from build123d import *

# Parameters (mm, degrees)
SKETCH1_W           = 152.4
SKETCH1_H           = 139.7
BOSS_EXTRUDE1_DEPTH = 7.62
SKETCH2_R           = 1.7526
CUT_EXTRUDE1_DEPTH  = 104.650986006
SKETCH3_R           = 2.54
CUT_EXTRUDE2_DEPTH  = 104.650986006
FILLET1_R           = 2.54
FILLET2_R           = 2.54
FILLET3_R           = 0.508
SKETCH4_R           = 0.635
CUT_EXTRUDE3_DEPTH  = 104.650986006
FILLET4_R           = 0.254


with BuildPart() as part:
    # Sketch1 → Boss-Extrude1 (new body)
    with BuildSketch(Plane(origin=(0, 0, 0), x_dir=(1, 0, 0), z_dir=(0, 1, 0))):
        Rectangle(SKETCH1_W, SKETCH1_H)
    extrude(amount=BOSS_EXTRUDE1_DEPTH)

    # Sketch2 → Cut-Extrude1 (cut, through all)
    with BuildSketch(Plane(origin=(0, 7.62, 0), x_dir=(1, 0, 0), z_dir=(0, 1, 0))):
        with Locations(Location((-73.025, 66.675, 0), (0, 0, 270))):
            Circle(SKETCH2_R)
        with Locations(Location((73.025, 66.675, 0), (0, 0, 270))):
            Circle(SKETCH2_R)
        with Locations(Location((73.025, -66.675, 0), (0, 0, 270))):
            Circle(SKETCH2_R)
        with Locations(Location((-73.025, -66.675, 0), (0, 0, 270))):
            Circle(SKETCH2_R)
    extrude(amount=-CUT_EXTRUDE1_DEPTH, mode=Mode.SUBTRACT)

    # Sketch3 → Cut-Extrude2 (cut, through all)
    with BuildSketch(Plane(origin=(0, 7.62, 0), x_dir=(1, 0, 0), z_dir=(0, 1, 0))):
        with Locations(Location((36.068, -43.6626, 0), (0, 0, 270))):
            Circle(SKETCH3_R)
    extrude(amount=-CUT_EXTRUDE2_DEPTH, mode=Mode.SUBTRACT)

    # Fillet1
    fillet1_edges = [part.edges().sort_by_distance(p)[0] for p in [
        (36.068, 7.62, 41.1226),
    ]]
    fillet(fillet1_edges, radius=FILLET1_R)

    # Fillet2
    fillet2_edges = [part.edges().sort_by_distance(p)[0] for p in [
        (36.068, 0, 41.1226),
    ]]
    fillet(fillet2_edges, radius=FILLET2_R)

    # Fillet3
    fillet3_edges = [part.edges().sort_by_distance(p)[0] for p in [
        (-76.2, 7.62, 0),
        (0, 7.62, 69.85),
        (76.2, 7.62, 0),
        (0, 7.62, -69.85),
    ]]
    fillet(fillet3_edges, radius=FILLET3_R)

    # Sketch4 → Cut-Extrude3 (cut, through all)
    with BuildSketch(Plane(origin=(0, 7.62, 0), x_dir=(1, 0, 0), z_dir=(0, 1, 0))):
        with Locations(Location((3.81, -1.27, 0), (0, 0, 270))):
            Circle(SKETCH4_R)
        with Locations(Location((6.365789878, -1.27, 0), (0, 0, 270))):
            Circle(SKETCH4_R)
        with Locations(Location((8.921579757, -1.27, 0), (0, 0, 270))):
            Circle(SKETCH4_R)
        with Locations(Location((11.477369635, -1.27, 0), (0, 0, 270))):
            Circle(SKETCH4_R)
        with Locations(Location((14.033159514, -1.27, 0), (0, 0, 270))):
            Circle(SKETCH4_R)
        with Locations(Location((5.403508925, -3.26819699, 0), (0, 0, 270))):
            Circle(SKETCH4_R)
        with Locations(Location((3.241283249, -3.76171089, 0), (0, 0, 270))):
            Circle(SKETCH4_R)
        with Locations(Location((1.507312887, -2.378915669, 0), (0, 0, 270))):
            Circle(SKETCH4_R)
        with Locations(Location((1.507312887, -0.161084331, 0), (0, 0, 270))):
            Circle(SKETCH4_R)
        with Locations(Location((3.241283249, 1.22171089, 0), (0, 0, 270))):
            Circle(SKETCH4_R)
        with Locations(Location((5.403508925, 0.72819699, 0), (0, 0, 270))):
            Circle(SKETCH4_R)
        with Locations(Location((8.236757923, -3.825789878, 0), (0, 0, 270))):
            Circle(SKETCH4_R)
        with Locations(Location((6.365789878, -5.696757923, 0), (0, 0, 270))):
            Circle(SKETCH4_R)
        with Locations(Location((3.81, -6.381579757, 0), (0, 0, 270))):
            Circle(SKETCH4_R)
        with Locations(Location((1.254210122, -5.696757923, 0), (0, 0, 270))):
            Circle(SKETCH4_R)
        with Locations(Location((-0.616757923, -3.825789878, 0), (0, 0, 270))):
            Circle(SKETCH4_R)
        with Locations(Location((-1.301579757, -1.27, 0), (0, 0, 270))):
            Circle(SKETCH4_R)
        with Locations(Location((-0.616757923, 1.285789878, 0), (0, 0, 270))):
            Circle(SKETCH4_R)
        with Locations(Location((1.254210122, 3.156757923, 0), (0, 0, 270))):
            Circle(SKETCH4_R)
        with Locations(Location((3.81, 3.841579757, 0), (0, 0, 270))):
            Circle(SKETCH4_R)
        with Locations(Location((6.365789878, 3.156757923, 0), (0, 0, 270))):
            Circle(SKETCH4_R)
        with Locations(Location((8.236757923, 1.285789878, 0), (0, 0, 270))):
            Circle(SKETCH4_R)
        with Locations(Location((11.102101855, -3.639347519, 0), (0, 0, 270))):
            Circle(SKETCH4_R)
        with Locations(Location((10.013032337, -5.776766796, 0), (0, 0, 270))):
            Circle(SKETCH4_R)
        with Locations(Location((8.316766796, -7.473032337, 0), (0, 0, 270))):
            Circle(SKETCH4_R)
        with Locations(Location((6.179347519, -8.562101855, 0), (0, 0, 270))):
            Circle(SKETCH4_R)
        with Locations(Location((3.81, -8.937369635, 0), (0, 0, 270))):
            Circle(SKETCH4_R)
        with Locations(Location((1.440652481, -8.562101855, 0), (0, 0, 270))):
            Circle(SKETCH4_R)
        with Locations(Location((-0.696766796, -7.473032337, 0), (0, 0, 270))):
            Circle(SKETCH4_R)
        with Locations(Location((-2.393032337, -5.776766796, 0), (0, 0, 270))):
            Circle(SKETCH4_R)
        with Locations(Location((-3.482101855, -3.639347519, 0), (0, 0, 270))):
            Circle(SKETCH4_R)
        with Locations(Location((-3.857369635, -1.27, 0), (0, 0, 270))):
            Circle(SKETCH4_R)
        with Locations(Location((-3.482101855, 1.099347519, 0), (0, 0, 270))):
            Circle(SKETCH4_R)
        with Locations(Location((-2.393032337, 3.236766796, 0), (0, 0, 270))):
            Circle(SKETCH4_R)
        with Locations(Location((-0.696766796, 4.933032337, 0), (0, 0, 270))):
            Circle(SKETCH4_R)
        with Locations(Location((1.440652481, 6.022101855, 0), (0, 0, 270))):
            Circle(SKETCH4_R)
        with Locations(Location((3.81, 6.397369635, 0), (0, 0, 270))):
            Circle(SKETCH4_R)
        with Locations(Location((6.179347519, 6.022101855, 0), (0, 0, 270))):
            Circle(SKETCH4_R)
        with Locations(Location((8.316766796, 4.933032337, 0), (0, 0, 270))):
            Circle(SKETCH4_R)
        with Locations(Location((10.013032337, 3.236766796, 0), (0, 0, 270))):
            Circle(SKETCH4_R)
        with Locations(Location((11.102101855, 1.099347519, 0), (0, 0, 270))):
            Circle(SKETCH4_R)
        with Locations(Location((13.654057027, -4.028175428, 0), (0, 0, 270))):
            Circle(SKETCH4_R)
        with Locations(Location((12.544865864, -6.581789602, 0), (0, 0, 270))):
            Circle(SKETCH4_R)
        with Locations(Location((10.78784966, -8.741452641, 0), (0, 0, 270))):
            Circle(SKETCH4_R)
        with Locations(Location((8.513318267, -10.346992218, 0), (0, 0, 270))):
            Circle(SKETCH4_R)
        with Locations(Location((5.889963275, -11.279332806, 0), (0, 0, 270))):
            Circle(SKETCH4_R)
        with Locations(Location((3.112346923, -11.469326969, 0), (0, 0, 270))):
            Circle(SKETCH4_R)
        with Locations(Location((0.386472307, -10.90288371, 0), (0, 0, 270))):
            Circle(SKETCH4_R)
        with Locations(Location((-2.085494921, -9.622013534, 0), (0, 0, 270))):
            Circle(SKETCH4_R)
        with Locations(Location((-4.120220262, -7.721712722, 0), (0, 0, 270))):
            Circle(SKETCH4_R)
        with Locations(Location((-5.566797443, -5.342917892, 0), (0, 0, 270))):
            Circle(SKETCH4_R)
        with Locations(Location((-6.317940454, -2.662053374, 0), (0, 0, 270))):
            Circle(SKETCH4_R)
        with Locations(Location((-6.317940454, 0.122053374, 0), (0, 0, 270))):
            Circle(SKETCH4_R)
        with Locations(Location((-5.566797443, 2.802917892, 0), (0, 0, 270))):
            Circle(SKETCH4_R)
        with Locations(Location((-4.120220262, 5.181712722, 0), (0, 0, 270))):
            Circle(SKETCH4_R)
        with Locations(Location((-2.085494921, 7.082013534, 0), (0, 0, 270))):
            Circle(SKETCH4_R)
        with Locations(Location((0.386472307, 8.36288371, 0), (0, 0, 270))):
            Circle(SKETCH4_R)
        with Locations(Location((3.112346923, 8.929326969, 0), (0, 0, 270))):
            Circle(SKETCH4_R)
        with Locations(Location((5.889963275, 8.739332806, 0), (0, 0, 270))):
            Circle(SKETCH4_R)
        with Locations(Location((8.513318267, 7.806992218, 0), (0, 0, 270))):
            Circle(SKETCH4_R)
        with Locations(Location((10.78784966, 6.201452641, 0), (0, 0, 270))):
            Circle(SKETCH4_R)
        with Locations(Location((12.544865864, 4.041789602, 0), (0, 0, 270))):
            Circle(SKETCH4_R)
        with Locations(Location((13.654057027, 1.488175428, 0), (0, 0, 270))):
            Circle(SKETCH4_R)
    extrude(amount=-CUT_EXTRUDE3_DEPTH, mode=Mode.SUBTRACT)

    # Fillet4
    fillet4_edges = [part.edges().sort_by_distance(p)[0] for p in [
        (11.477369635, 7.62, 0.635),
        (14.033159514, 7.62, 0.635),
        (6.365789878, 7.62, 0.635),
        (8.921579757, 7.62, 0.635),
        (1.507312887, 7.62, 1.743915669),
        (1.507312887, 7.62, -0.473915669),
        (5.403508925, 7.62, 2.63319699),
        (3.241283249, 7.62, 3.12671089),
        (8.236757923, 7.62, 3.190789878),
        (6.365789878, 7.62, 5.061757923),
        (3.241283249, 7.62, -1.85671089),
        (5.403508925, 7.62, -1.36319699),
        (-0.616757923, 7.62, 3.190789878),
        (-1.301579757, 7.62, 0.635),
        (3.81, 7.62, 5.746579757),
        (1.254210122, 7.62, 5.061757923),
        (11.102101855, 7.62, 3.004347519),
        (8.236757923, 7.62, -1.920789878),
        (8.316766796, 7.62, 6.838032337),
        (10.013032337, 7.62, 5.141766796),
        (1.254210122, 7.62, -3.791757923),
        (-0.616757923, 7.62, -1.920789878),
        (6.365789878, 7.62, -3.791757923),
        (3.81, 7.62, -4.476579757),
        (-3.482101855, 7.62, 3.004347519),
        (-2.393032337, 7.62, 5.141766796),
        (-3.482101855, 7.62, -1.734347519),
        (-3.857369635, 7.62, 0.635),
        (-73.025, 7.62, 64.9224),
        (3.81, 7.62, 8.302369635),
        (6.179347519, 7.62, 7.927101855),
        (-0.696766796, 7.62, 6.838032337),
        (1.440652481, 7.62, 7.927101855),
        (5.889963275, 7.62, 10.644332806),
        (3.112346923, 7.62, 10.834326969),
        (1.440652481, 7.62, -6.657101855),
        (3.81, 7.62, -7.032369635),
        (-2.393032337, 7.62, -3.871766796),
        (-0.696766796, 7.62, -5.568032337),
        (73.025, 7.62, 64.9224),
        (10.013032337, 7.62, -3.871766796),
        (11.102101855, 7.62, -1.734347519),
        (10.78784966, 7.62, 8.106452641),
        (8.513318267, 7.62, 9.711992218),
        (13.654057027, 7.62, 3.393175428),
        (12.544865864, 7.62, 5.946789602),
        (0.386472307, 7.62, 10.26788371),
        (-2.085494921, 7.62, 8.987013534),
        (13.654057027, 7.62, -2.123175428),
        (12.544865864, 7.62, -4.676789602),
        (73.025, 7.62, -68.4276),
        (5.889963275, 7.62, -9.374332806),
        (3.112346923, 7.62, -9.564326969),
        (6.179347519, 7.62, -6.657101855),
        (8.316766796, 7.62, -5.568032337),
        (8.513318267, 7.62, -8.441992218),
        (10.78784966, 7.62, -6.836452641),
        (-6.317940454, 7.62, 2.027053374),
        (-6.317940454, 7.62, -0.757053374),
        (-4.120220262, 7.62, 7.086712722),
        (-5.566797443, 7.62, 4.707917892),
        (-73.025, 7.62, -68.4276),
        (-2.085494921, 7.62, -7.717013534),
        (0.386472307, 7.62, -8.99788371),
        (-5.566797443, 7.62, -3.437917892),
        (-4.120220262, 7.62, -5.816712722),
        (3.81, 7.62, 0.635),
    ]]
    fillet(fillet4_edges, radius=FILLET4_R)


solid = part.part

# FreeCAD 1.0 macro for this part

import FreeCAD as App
import Part
import Sketcher

V = App.Vector
Q = App.Units.Quantity


def edges_at(feature, points):
    """Names of the edges that pass closest to the given points."""
    edges = feature.Shape.Edges
    near = lambda p: min(range(len(edges)), key=lambda i: edges[i].distToShape(Part.Vertex(*p))[0])
    return sorted({f"Edge{near(p) + 1}" for p in points})

doc = App.newDocument("Part")
body = doc.addObject("PartDesign::Body", "Body")

# Sketch on XZ plane
sketch1 = body.newObject("Sketcher::SketchObject", "Sketch")
sketch1.AttachmentSupport = (doc.getObject("XZ_Plane"), [""])
sketch1.MapMode = "FlatFace"
sketch1.addGeometry([
    Part.LineSegment(V(-76, -70, 0), V(-76, 70, 0)),
    Part.LineSegment(V(-76, 70, 0), V(76, 70, 0)),
    Part.LineSegment(V(76, 70, 0), V(76, -70, 0)),
    Part.LineSegment(V(76, -70, 0), V(-76, -70, 0)),
], False)
sketch1.addConstraint([
    Sketcher.Constraint("Coincident", 0, 2, 1, 1),
    Sketcher.Constraint("Coincident", 1, 2, 2, 1),
    Sketcher.Constraint("Coincident", 2, 2, 3, 1),
    Sketcher.Constraint("Coincident", 3, 2, 0, 1),
    Sketcher.Constraint("Vertical", 0),
    Sketcher.Constraint("Horizontal", 1),
    Sketcher.Constraint("Vertical", 2),
    Sketcher.Constraint("Horizontal", 3),
    Sketcher.Constraint("Symmetric", 0, 2, 2, 2, -1, 1),
    Sketcher.Constraint("DistanceX", 1, 1, 1, 2, Q("6 in")),
    Sketcher.Constraint("DistanceY", 0, 1, 0, 2, Q("5.5 in")),
])
pad1 = body.newObject("PartDesign::Pad", "Pad")
pad1.Profile = sketch1
pad1.Length = Q("0.3 in")
pad1.Reversed = True

# Sketch on XZ plane
sketch2 = body.newObject("Sketcher::SketchObject", "Sketch001")
sketch2.AttachmentSupport = (doc.getObject("XZ_Plane"), [""])
sketch2.MapMode = "FlatFace"
sketch2.AttachmentOffset = App.Placement(V(0, 0, -0.3 * 25.4), App.Rotation())
sketch2.addGeometry([
    Part.Circle(V(-73, -66.7, 0), V(0, 0, 1), 1.8),
    Part.Circle(V(73, -66.7, 0), V(0, 0, 1), 1.8),
    Part.Circle(V(73, 66.7, 0), V(0, 0, 1), 1.8),
    Part.Circle(V(-73, 66.7, 0), V(0, 0, 1), 1.8),
], False)
sketch2.addConstraint([
    Sketcher.Constraint("Equal", 0, 1),
    Sketcher.Constraint("Equal", 1, 2),
    Sketcher.Constraint("Equal", 2, 3),
    Sketcher.Constraint("Symmetric", 0, 3, 2, 3, -1, 1),
    Sketcher.Constraint("Symmetric", 1, 3, 3, 3, -1, 1),
    Sketcher.Constraint("Symmetric", 0, 3, 1, 3, -2),
    Sketcher.Constraint("Diameter", 0, Q("0.138 in")),
    Sketcher.Constraint("DistanceX", 0, 3, 1, 3, Q("5.75 in")),
    Sketcher.Constraint("DistanceY", 1, 3, 2, 3, Q("5.25 in")),
])
pocket1 = body.newObject("PartDesign::Pocket", "Pocket")
pocket1.Profile = sketch2
pocket1.Type = "ThroughAll"
pocket1.Reversed = True

# Sketch on XZ plane
sketch3 = body.newObject("Sketcher::SketchObject", "Sketch002")
sketch3.AttachmentSupport = (doc.getObject("XZ_Plane"), [""])
sketch3.MapMode = "FlatFace"
sketch3.AttachmentOffset = App.Placement(V(0, 0, -0.3 * 25.4), App.Rotation())
sketch3.addGeometry(Part.Circle(V(36.1, 43.7, 0), V(0, 0, 1), 2.5), False)
sketch3.addConstraint([
    Sketcher.Constraint("Diameter", 0, Q("0.2 in")),
    Sketcher.Constraint("DistanceX", -1, 1, 0, 3, Q("1.42 in")),
    Sketcher.Constraint("DistanceY", -1, 1, 0, 3, Q("1.719 in")),
])
pocket2 = body.newObject("PartDesign::Pocket", "Pocket001")
pocket2.Profile = sketch3
pocket2.Type = "ThroughAll"
pocket2.Reversed = True
doc.recompute()

fillet = body.newObject("PartDesign::Fillet", "Fillet")
fillet.Base = (pocket2, edges_at(pocket2, [(36.068, 7.62, 41.123)]))
fillet.Radius = Q("0.1 in")
doc.recompute()

fillet2 = body.newObject("PartDesign::Fillet", "Fillet001")
fillet2.Base = (fillet, edges_at(fillet, [(36.068, 0, 41.123)]))
fillet2.Radius = Q("0.1 in")
doc.recompute()

fillet3 = body.newObject("PartDesign::Fillet", "Fillet002")
fillet3.Base = (fillet2, edges_at(fillet2, [
    (-76.2, 7.62, 0),
    (0, 7.62, 69.85),
    (76.2, 7.62, 0),
    (0, 7.62, -69.85),
]))
fillet3.Radius = Q("0.02 in")

# Sketch on XZ plane
sketch4 = body.newObject("Sketcher::SketchObject", "Sketch003")
sketch4.AttachmentSupport = (doc.getObject("XZ_Plane"), [""])
sketch4.MapMode = "FlatFace"
sketch4.AttachmentOffset = App.Placement(V(0, 0, -0.3 * 25.4), App.Rotation())
sketch4.addGeometry([
    Part.Circle(V(3.8, 1.3, 0), V(0, 0, 1), 0.6),  # 0
    Part.Circle(V(6.4, 1.3, 0), V(0, 0, 1), 0.6),  # 1
    Part.Circle(V(8.9, 1.3, 0), V(0, 0, 1), 0.6),  # 2
    Part.Circle(V(11.5, 1.3, 0), V(0, 0, 1), 0.6),  # 3
    Part.Circle(V(14, 1.3, 0), V(0, 0, 1), 0.6),  # 4
    Part.Circle(V(5.4, 3.3, 0), V(0, 0, 1), 0.6),  # 5
    Part.Circle(V(3.2, 3.8, 0), V(0, 0, 1), 0.6),  # 6
    Part.Circle(V(1.5, 2.4, 0), V(0, 0, 1), 0.6),  # 7
    Part.Circle(V(1.5, 0.2, 0), V(0, 0, 1), 0.6),  # 8
    Part.Circle(V(3.2, -1.2, 0), V(0, 0, 1), 0.6),  # 9
    Part.Circle(V(5.4, -0.7, 0), V(0, 0, 1), 0.6),  # 10
    Part.Circle(V(8.2, 3.8, 0), V(0, 0, 1), 0.6),  # 11
    Part.Circle(V(6.4, 5.7, 0), V(0, 0, 1), 0.6),  # 12
    Part.Circle(V(3.8, 6.4, 0), V(0, 0, 1), 0.6),  # 13
    Part.Circle(V(1.3, 5.7, 0), V(0, 0, 1), 0.6),  # 14
    Part.Circle(V(-0.6, 3.8, 0), V(0, 0, 1), 0.6),  # 15
    Part.Circle(V(-1.3, 1.3, 0), V(0, 0, 1), 0.6),  # 16
    Part.Circle(V(-0.6, -1.3, 0), V(0, 0, 1), 0.6),  # 17
    Part.Circle(V(1.3, -3.2, 0), V(0, 0, 1), 0.6),  # 18
    Part.Circle(V(3.8, -3.8, 0), V(0, 0, 1), 0.6),  # 19
    Part.Circle(V(6.4, -3.2, 0), V(0, 0, 1), 0.6),  # 20
    Part.Circle(V(8.2, -1.3, 0), V(0, 0, 1), 0.6),  # 21
    Part.Circle(V(11.1, 3.6, 0), V(0, 0, 1), 0.6),  # 22
    Part.Circle(V(10, 5.8, 0), V(0, 0, 1), 0.6),  # 23
    Part.Circle(V(8.3, 7.5, 0), V(0, 0, 1), 0.6),  # 24
    Part.Circle(V(6.2, 8.6, 0), V(0, 0, 1), 0.6),  # 25
    Part.Circle(V(3.8, 8.9, 0), V(0, 0, 1), 0.6),  # 26
    Part.Circle(V(1.4, 8.6, 0), V(0, 0, 1), 0.6),  # 27
    Part.Circle(V(-0.7, 7.5, 0), V(0, 0, 1), 0.6),  # 28
    Part.Circle(V(-2.4, 5.8, 0), V(0, 0, 1), 0.6),  # 29
    Part.Circle(V(-3.5, 3.6, 0), V(0, 0, 1), 0.6),  # 30
    Part.Circle(V(-3.9, 1.3, 0), V(0, 0, 1), 0.6),  # 31
    Part.Circle(V(-3.5, -1.1, 0), V(0, 0, 1), 0.6),  # 32
    Part.Circle(V(-2.4, -3.2, 0), V(0, 0, 1), 0.6),  # 33
    Part.Circle(V(-0.7, -4.9, 0), V(0, 0, 1), 0.6),  # 34
    Part.Circle(V(1.4, -6, 0), V(0, 0, 1), 0.6),  # 35
    Part.Circle(V(3.8, -6.4, 0), V(0, 0, 1), 0.6),  # 36
    Part.Circle(V(6.2, -6, 0), V(0, 0, 1), 0.6),  # 37
    Part.Circle(V(8.3, -4.9, 0), V(0, 0, 1), 0.6),  # 38
    Part.Circle(V(10, -3.2, 0), V(0, 0, 1), 0.6),  # 39
    Part.Circle(V(11.1, -1.1, 0), V(0, 0, 1), 0.6),  # 40
    Part.Circle(V(13.7, 4, 0), V(0, 0, 1), 0.6),  # 41
    Part.Circle(V(12.5, 6.6, 0), V(0, 0, 1), 0.6),  # 42
    Part.Circle(V(10.8, 8.7, 0), V(0, 0, 1), 0.6),  # 43
    Part.Circle(V(8.5, 10.3, 0), V(0, 0, 1), 0.6),  # 44
    Part.Circle(V(5.9, 11.3, 0), V(0, 0, 1), 0.6),  # 45
    Part.Circle(V(3.1, 11.5, 0), V(0, 0, 1), 0.6),  # 46
    Part.Circle(V(0.4, 10.9, 0), V(0, 0, 1), 0.6),  # 47
    Part.Circle(V(-2.1, 9.6, 0), V(0, 0, 1), 0.6),  # 48
    Part.Circle(V(-4.1, 7.7, 0), V(0, 0, 1), 0.6),  # 49
    Part.Circle(V(-5.6, 5.3, 0), V(0, 0, 1), 0.6),  # 50
    Part.Circle(V(-6.3, 2.7, 0), V(0, 0, 1), 0.6),  # 51
    Part.Circle(V(-6.3, -0.1, 0), V(0, 0, 1), 0.6),  # 52
    Part.Circle(V(-5.6, -2.8, 0), V(0, 0, 1), 0.6),  # 53
    Part.Circle(V(-4.1, -5.2, 0), V(0, 0, 1), 0.6),  # 54
    Part.Circle(V(-2.1, -7.1, 0), V(0, 0, 1), 0.6),  # 55
    Part.Circle(V(0.4, -8.4, 0), V(0, 0, 1), 0.6),  # 56
    Part.Circle(V(3.1, -8.9, 0), V(0, 0, 1), 0.6),  # 57
    Part.Circle(V(5.9, -8.7, 0), V(0, 0, 1), 0.6),  # 58
    Part.Circle(V(8.5, -7.8, 0), V(0, 0, 1), 0.6),  # 59
    Part.Circle(V(10.8, -6.2, 0), V(0, 0, 1), 0.6),  # 60
    Part.Circle(V(12.5, -4, 0), V(0, 0, 1), 0.6),  # 61
    Part.Circle(V(13.7, -1.5, 0), V(0, 0, 1), 0.6),  # 62
], False)
sketch4.addConstraint([
    Sketcher.Constraint("Equal", 0, 1),
    Sketcher.Constraint("Equal", 1, 2),
    Sketcher.Constraint("Equal", 2, 3),
    Sketcher.Constraint("Equal", 3, 4),
    Sketcher.Constraint("Equal", 4, 5),
    Sketcher.Constraint("Equal", 5, 6),
    Sketcher.Constraint("Equal", 6, 7),
    Sketcher.Constraint("Equal", 7, 8),
    Sketcher.Constraint("Equal", 8, 9),
    Sketcher.Constraint("Equal", 9, 10),
    Sketcher.Constraint("Equal", 10, 11),
    Sketcher.Constraint("Equal", 11, 12),
    Sketcher.Constraint("Equal", 12, 13),
    Sketcher.Constraint("Equal", 13, 14),
    Sketcher.Constraint("Equal", 14, 15),
    Sketcher.Constraint("Equal", 15, 16),
    Sketcher.Constraint("Equal", 16, 17),
    Sketcher.Constraint("Equal", 17, 18),
    Sketcher.Constraint("Equal", 18, 19),
    Sketcher.Constraint("Equal", 19, 20),
    Sketcher.Constraint("Equal", 20, 21),
    Sketcher.Constraint("Equal", 21, 22),
    Sketcher.Constraint("Equal", 22, 23),
    Sketcher.Constraint("Equal", 23, 24),
    Sketcher.Constraint("Equal", 24, 25),
    Sketcher.Constraint("Equal", 25, 26),
    Sketcher.Constraint("Equal", 26, 27),
    Sketcher.Constraint("Equal", 27, 28),
    Sketcher.Constraint("Equal", 28, 29),
    Sketcher.Constraint("Equal", 29, 30),
    Sketcher.Constraint("Equal", 30, 31),
    Sketcher.Constraint("Equal", 31, 32),
    Sketcher.Constraint("Equal", 32, 33),
    Sketcher.Constraint("Equal", 33, 34),
    Sketcher.Constraint("Equal", 34, 35),
    Sketcher.Constraint("Equal", 35, 36),
    Sketcher.Constraint("Equal", 36, 37),
    Sketcher.Constraint("Equal", 37, 38),
    Sketcher.Constraint("Equal", 38, 39),
    Sketcher.Constraint("Equal", 39, 40),
    Sketcher.Constraint("Equal", 40, 41),
    Sketcher.Constraint("Equal", 41, 42),
    Sketcher.Constraint("Equal", 42, 43),
    Sketcher.Constraint("Equal", 43, 44),
    Sketcher.Constraint("Equal", 44, 45),
    Sketcher.Constraint("Equal", 45, 46),
    Sketcher.Constraint("Equal", 46, 47),
    Sketcher.Constraint("Equal", 47, 48),
    Sketcher.Constraint("Equal", 48, 49),
    Sketcher.Constraint("Equal", 49, 50),
    Sketcher.Constraint("Equal", 50, 51),
    Sketcher.Constraint("Equal", 51, 52),
    Sketcher.Constraint("Equal", 52, 53),
    Sketcher.Constraint("Equal", 53, 54),
    Sketcher.Constraint("Equal", 54, 55),
    Sketcher.Constraint("Equal", 55, 56),
    Sketcher.Constraint("Equal", 56, 57),
    Sketcher.Constraint("Equal", 57, 58),
    Sketcher.Constraint("Equal", 58, 59),
    Sketcher.Constraint("Equal", 59, 60),
    Sketcher.Constraint("Equal", 60, 61),
    Sketcher.Constraint("Equal", 61, 62),
    Sketcher.Constraint("Horizontal", 0, 3, 1, 3),
    Sketcher.Constraint("Horizontal", 1, 3, 2, 3),
    Sketcher.Constraint("Horizontal", 2, 3, 3, 3),
    Sketcher.Constraint("Horizontal", 3, 3, 4, 3),
    Sketcher.Constraint("Horizontal", 12, 3, 14, 3),
    Sketcher.Constraint("Horizontal", 11, 3, 15, 3),
    Sketcher.Constraint("Horizontal", 4, 3, 16, 3),
    Sketcher.Constraint("Horizontal", 18, 3, 20, 3),
    Sketcher.Constraint("Horizontal", 17, 3, 21, 3),
    Sketcher.Constraint("Horizontal", 25, 3, 27, 3),
    Sketcher.Constraint("Horizontal", 24, 3, 28, 3),
    Sketcher.Constraint("Horizontal", 23, 3, 29, 3),
    Sketcher.Constraint("Horizontal", 22, 3, 30, 3),
    Sketcher.Constraint("Horizontal", 16, 3, 31, 3),
    Sketcher.Constraint("Horizontal", 35, 3, 37, 3),
    Sketcher.Constraint("Horizontal", 34, 3, 38, 3),
    Sketcher.Constraint("Horizontal", 33, 3, 39, 3),
    Sketcher.Constraint("Horizontal", 32, 3, 40, 3),
    Sketcher.Constraint("Vertical", 7, 3, 8, 3),
    Sketcher.Constraint("Vertical", 6, 3, 9, 3),
    Sketcher.Constraint("Vertical", 5, 3, 10, 3),
    Sketcher.Constraint("Vertical", 1, 3, 12, 3),
    Sketcher.Constraint("Vertical", 0, 3, 13, 3),
    Sketcher.Constraint("Vertical", 15, 3, 17, 3),
    Sketcher.Constraint("Vertical", 14, 3, 18, 3),
    Sketcher.Constraint("Vertical", 13, 3, 19, 3),
    Sketcher.Constraint("Vertical", 12, 3, 20, 3),
    Sketcher.Constraint("Vertical", 11, 3, 21, 3),
    Sketcher.Constraint("Vertical", 19, 3, 26, 3),
    Sketcher.Constraint("Vertical", 30, 3, 32, 3),
    Sketcher.Constraint("Vertical", 29, 3, 33, 3),
    Sketcher.Constraint("Vertical", 28, 3, 34, 3),
    Sketcher.Constraint("Vertical", 27, 3, 35, 3),
    Sketcher.Constraint("Vertical", 26, 3, 36, 3),
    Sketcher.Constraint("Vertical", 25, 3, 37, 3),
    Sketcher.Constraint("Vertical", 24, 3, 38, 3),
    Sketcher.Constraint("Vertical", 23, 3, 39, 3),
    Sketcher.Constraint("Vertical", 22, 3, 40, 3),
    Sketcher.Constraint("Vertical", 51, 3, 52, 3),
    Sketcher.Constraint("Vertical", 50, 3, 53, 3),
    Sketcher.Constraint("Vertical", 49, 3, 54, 3),
    Sketcher.Constraint("Vertical", 48, 3, 55, 3),
    Sketcher.Constraint("Vertical", 47, 3, 56, 3),
    Sketcher.Constraint("Vertical", 46, 3, 57, 3),
    Sketcher.Constraint("Vertical", 45, 3, 58, 3),
    Sketcher.Constraint("Vertical", 44, 3, 59, 3),
    Sketcher.Constraint("Vertical", 43, 3, 60, 3),
    Sketcher.Constraint("Vertical", 42, 3, 61, 3),
    Sketcher.Constraint("Vertical", 41, 3, 62, 3),
    Sketcher.Constraint("Diameter", 0, Q("0.05 in")),
    Sketcher.Constraint("DistanceX", -1, 1, 0, 3, Q("0.15 in")),
    Sketcher.Constraint("DistanceY", -1, 1, 0, 3, Q("0.05 in")),
    Sketcher.Constraint("DistanceX", -1, 1, 22, 3, 11.102102),
    Sketcher.Constraint("DistanceY", -1, 1, 25, 3, 8.562102),
    Sketcher.Constraint("DistanceX", 30, 3, -1, 1, 3.482102),
    Sketcher.Constraint("DistanceY", 35, 3, -1, 1, 6.022102),
    Sketcher.Constraint("DistanceX", -1, 1, 1, 3, 6.36579),
    Sketcher.Constraint("DistanceX", -1, 1, 2, 3, 8.92158),
    Sketcher.Constraint("DistanceX", -1, 1, 3, 3, 11.47737),
    Sketcher.Constraint("DistanceX", -1, 1, 4, 3, 14.03316),
    Sketcher.Constraint("DistanceX", -1, 1, 5, 3, 5.403509),
    Sketcher.Constraint("DistanceY", -1, 1, 6, 3, 3.761711),
    Sketcher.Constraint("DistanceY", 9, 3, -1, 1, 1.221711),
    Sketcher.Constraint("DistanceY", -1, 1, 11, 3, 3.82579),
    Sketcher.Constraint("DistanceY", -1, 1, 13, 3, 6.38158),
    Sketcher.Constraint("DistanceX", -1, 1, 14, 3, 1.25421),
    Sketcher.Constraint("DistanceX", 16, 3, -1, 1, 1.30158),
    Sketcher.Constraint("DistanceY", 17, 3, -1, 1, 1.28579),
    Sketcher.Constraint("DistanceY", 19, 3, -1, 1, 3.84158),
    Sketcher.Constraint("DistanceY", -1, 1, 26, 3, 8.93737),
    Sketcher.Constraint("DistanceX", 31, 3, -1, 1, 3.85737),
    Sketcher.Constraint("DistanceY", 36, 3, -1, 1, 6.39737),
    Sketcher.Constraint("DistanceY", -1, 1, 42, 3, 6.58179),
    Sketcher.Constraint("DistanceX", -1, 1, 43, 3, 10.78785),
    Sketcher.Constraint("DistanceX", -1, 1, 44, 3, 8.513318),
    Sketcher.Constraint("DistanceX", 49, 3, -1, 1, 4.12022),
    Sketcher.Constraint("DistanceX", 51, 3, -1, 1, 6.31794),
    Sketcher.Constraint("DistanceY", 61, 3, -1, 1, 4.04179),
    Sketcher.Constraint("DistanceY", -1, 1, 5, 3, 3.268197),
    Sketcher.Constraint("DistanceX", -1, 1, 6, 3, 3.241283),
    Sketcher.Constraint("DistanceX", -1, 1, 7, 3, 1.507313),
    Sketcher.Constraint("DistanceY", -1, 1, 7, 3, 2.378916),
    Sketcher.Constraint("DistanceY", -1, 1, 8, 3, 0.161084),
    Sketcher.Constraint("DistanceY", 10, 3, -1, 1, 0.728197),
    Sketcher.Constraint("DistanceX", -1, 1, 11, 3, 8.236758),
    Sketcher.Constraint("DistanceY", -1, 1, 12, 3, 5.696758),
    Sketcher.Constraint("DistanceX", 15, 3, -1, 1, 0.616758),
    Sketcher.Constraint("DistanceY", 18, 3, -1, 1, 3.156758),
    Sketcher.Constraint("DistanceY", -1, 1, 22, 3, 3.639348),
    Sketcher.Constraint("DistanceX", -1, 1, 23, 3, 10.013032),
    Sketcher.Constraint("DistanceY", -1, 1, 23, 3, 5.776767),
    Sketcher.Constraint("DistanceX", -1, 1, 24, 3, 8.316767),
    Sketcher.Constraint("DistanceY", -1, 1, 24, 3, 7.473032),
    Sketcher.Constraint("DistanceX", -1, 1, 25, 3, 6.179348),
    Sketcher.Constraint("DistanceX", -1, 1, 27, 3, 1.440652),
    Sketcher.Constraint("DistanceX", 28, 3, -1, 1, 0.696767),
    Sketcher.Constraint("DistanceX", 29, 3, -1, 1, 2.393032),
    Sketcher.Constraint("DistanceY", 32, 3, -1, 1, 1.099348),
    Sketcher.Constraint("DistanceY", 33, 3, -1, 1, 3.236767),
    Sketcher.Constraint("DistanceY", 34, 3, -1, 1, 4.933032),
    Sketcher.Constraint("DistanceX", -1, 1, 41, 3, 13.654057),
    Sketcher.Constraint("DistanceY", -1, 1, 41, 3, 4.028175),
    Sketcher.Constraint("DistanceX", -1, 1, 42, 3, 12.544866),
    Sketcher.Constraint("DistanceY", -1, 1, 43, 3, 8.741453),
    Sketcher.Constraint("DistanceY", -1, 1, 44, 3, 10.346992),
    Sketcher.Constraint("DistanceX", -1, 1, 45, 3, 5.889963),
    Sketcher.Constraint("DistanceY", -1, 1, 45, 3, 11.279333),
    Sketcher.Constraint("DistanceX", -1, 1, 46, 3, 3.112347),
    Sketcher.Constraint("DistanceY", -1, 1, 46, 3, 11.469327),
    Sketcher.Constraint("DistanceX", -1, 1, 47, 3, 0.386472),
    Sketcher.Constraint("DistanceY", -1, 1, 47, 3, 10.902884),
    Sketcher.Constraint("DistanceX", 48, 3, -1, 1, 2.085495),
    Sketcher.Constraint("DistanceY", -1, 1, 48, 3, 9.622014),
    Sketcher.Constraint("DistanceY", -1, 1, 49, 3, 7.721713),
    Sketcher.Constraint("DistanceX", 50, 3, -1, 1, 5.566797),
    Sketcher.Constraint("DistanceY", -1, 1, 50, 3, 5.342918),
    Sketcher.Constraint("DistanceY", -1, 1, 51, 3, 2.662053),
    Sketcher.Constraint("DistanceY", 52, 3, -1, 1, 0.122053),
    Sketcher.Constraint("DistanceY", 53, 3, -1, 1, 2.802918),
    Sketcher.Constraint("DistanceY", 54, 3, -1, 1, 5.181713),
    Sketcher.Constraint("DistanceY", 55, 3, -1, 1, 7.082014),
    Sketcher.Constraint("DistanceY", 56, 3, -1, 1, 8.362884),
    Sketcher.Constraint("DistanceY", 57, 3, -1, 1, 8.929327),
    Sketcher.Constraint("DistanceY", 58, 3, -1, 1, 8.739333),
    Sketcher.Constraint("DistanceY", 59, 3, -1, 1, 7.806992),
    Sketcher.Constraint("DistanceY", 60, 3, -1, 1, 6.201453),
    Sketcher.Constraint("DistanceY", 62, 3, -1, 1, 1.488175),
])
pocket3 = body.newObject("PartDesign::Pocket", "Pocket002")
pocket3.Profile = sketch4
pocket3.Type = "ThroughAll"
pocket3.Reversed = True
doc.recompute()

fillet4 = body.newObject("PartDesign::Fillet", "Fillet003")
fillet4.Base = (pocket3, edges_at(pocket3, [
    (11.477, 7.62, 0.635),
    (14.033, 7.62, 0.635),
    (6.366, 7.62, 0.635),
    (8.922, 7.62, 0.635),
    (1.507, 7.62, 1.744),
    (1.507, 7.62, -0.474),
    (5.404, 7.62, 2.633),
    (3.241, 7.62, 3.127),
    (8.237, 7.62, 3.191),
    (6.366, 7.62, 5.062),
    (3.241, 7.62, -1.857),
    (5.404, 7.62, -1.363),
    (-0.617, 7.62, 3.191),
    (-1.302, 7.62, 0.635),
    (3.81, 7.62, 5.747),
    (1.254, 7.62, 5.062),
    (11.102, 7.62, 3.004),
    (8.237, 7.62, -1.921),
    (8.317, 7.62, 6.838),
    (10.013, 7.62, 5.142),
    (1.254, 7.62, -3.792),
    (-0.617, 7.62, -1.921),
    (6.366, 7.62, -3.792),
    (3.81, 7.62, -4.477),
    (-3.482, 7.62, 3.004),
    (-2.393, 7.62, 5.142),
    (-3.482, 7.62, -1.734),
    (-3.857, 7.62, 0.635),
    (-73.025, 7.62, 64.922),
    (3.81, 7.62, 8.302),
    (6.179, 7.62, 7.927),
    (-0.697, 7.62, 6.838),
    (1.441, 7.62, 7.927),
    (5.89, 7.62, 10.644),
    (3.112, 7.62, 10.834),
    (1.441, 7.62, -6.657),
    (3.81, 7.62, -7.032),
    (-2.393, 7.62, -3.872),
    (-0.697, 7.62, -5.568),
    (73.025, 7.62, 64.922),
    (10.013, 7.62, -3.872),
    (11.102, 7.62, -1.734),
    (10.788, 7.62, 8.106),
    (8.513, 7.62, 9.712),
    (13.654, 7.62, 3.393),
    (12.545, 7.62, 5.947),
    (0.386, 7.62, 10.268),
    (-2.085, 7.62, 8.987),
    (13.654, 7.62, -2.123),
    (12.545, 7.62, -4.677),
    (73.025, 7.62, -68.428),
    (5.89, 7.62, -9.374),
    (3.112, 7.62, -9.564),
    (6.179, 7.62, -6.657),
    (8.317, 7.62, -5.568),
    (8.513, 7.62, -8.442),
    (10.788, 7.62, -6.836),
    (-6.318, 7.62, 2.027),
    (-6.318, 7.62, -0.757),
    (-4.12, 7.62, 7.087),
    (-5.567, 7.62, 4.708),
    (-73.025, 7.62, -68.428),
    (-2.085, 7.62, -7.717),
    (0.386, 7.62, -8.998),
    (-5.567, 7.62, -3.438),
    (-4.12, 7.62, -5.817),
    (3.81, 7.62, 0.635),
]))
fillet4.Radius = Q("0.01 in")

doc.recompute()
